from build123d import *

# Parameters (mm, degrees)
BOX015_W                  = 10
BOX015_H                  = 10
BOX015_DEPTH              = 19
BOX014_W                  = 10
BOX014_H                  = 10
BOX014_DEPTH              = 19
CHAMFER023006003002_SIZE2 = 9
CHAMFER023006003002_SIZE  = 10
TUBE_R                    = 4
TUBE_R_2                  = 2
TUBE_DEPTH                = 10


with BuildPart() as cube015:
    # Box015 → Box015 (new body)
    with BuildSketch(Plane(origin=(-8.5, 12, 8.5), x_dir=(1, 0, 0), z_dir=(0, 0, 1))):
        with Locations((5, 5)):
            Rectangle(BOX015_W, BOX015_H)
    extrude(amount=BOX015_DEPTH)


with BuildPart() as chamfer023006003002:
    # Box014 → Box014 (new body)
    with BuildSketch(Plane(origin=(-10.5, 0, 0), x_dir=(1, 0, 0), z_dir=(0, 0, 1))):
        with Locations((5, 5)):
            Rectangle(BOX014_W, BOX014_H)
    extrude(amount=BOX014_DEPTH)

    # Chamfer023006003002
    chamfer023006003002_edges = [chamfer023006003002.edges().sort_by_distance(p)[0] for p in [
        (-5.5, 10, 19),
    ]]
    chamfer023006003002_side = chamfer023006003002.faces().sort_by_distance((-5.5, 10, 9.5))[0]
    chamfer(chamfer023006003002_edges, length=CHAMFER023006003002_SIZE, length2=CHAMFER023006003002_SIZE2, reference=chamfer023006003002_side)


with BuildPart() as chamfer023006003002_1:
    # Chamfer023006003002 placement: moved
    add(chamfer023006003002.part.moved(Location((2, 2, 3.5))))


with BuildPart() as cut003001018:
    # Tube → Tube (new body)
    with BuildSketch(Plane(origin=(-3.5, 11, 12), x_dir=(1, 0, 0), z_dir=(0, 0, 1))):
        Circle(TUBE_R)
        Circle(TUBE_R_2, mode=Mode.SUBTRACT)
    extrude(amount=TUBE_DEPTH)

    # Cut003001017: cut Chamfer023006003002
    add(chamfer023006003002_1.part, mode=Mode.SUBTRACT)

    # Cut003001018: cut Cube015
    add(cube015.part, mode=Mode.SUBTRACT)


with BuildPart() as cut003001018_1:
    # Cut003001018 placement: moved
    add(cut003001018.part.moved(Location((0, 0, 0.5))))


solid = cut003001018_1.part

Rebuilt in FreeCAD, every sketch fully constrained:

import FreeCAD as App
import Part
import Sketcher
from FreeCAD import Vector


def edges_at(feature, points):
    """Names of the edges that pass closest to the given points."""
    edges = feature.Shape.Edges
    near = lambda p: min(range(len(edges)), key=lambda i: edges[i].distToShape(Part.Vertex(*p))[0])
    return sorted({f"Edge{near(p) + 1}" for p in points})


def add_polygon(sketch, points):
    """Adds a closed chain of lines whose ends are joined by coincident constraints."""
    first, n = sketch.GeometryCount, len(points)
    for a, b in zip(points, points[1:] + points[:1]):
        sketch.addGeometry(Part.LineSegment(App.Vector(*a, 0), App.Vector(*b, 0)), False)
    for i in range(n):
        sketch.addConstraint(Sketcher.Constraint("Coincident", first + i, 2, first + (i + 1) % n, 1))

doc = App.newDocument("Part")
body = doc.addObject("PartDesign::Body", "Body")

# Sketch on XY plane
sketch1 = body.newObject("Sketcher::SketchObject", "Sketch")
sketch1.AttachmentSupport = (doc.getObject("XY_Plane"), [""])
sketch1.MapMode = "FlatFace"
sketch1.AttachmentOffset = App.Placement(Vector(0, 0, 8.5), App.Rotation())
add_polygon(sketch1, [(-8.5, 22), (-8.5, 12), (1.5, 12), (1.5, 22)])  # lines 0-3
sketch1.addConstraint(Sketcher.Constraint("Vertical", 0))
sketch1.addConstraint(Sketcher.Constraint("Horizontal", 1))
sketch1.addConstraint(Sketcher.Constraint("Vertical", 2))
sketch1.addConstraint(Sketcher.Constraint("Horizontal", 3))
sketch1.addConstraint(Sketcher.Constraint("Equal", 3, 0))
sketch1.addConstraint(Sketcher.Constraint("DistanceX", 1, 1, 1, 2, 10.0))
sketch1.addConstraint(Sketcher.Constraint("DistanceY", -1, 1, 0, 2, 12.0))
sketch1.addConstraint(Sketcher.Constraint("DistanceX", 0, 2, -1, 1, 8.5))
pad1 = body.newObject("PartDesign::Pad", "Pad")
pad1.Profile = sketch1
pad1.Length = 19
body2 = doc.addObject("PartDesign::Body", "Body001")

# Sketch on XY plane
sketch2 = body2.newObject("Sketcher::SketchObject", "Sketch001")
sketch2.AttachmentSupport = (doc.getObject("XY_Plane001"), [""])
sketch2.MapMode = "FlatFace"
add_polygon(sketch2, [(-10.5, 10), (-10.5, 0), (-0.5, 0), (-0.5, 10)])  # lines 0-3
sketch2.addConstraint(Sketcher.Constraint("Vertical", 0))
sketch2.addConstraint(Sketcher.Constraint("Horizontal", 1))
sketch2.addConstraint(Sketcher.Constraint("Vertical", 2))
sketch2.addConstraint(Sketcher.Constraint("Horizontal", 3))
sketch2.addConstraint(Sketcher.Constraint("PointOnObject", 0, 2, -1))
sketch2.addConstraint(Sketcher.Constraint("Equal", 3, 0))
sketch2.addConstraint(Sketcher.Constraint("DistanceX", 1, 1, 1, 2, 10.0))
sketch2.addConstraint(Sketcher.Constraint("DistanceX", 0, 2, -1, 1, 10.5))
pad2 = body2.newObject("PartDesign::Pad", "Pad001")
pad2.Profile = sketch2
pad2.Length = 19
doc.recompute()

chamfer = body2.newObject("PartDesign::Chamfer", "Chamfer")
chamfer.Base = (pad2, edges_at(pad2, [(-5.5, 10, 19)]))
chamfer.ChamferType = "Two distances"
chamfer.Size = 10
chamfer.Size2 = 9
body3 = doc.addObject("PartDesign::Body", "Body002")
doc.recompute()

body2.Placement = App.Placement(Vector(2, 2, 3.5), App.Rotation(Vector(0, 0, 1), 0))
boolean = body3.newObject("PartDesign::Boolean", "Boolean")
boolean.Type = "Fuse"
boolean.addObjects([body2])
body4 = doc.addObject("PartDesign::Body", "Body003")

# Sketch on XY plane
sketch3 = body4.newObject("Sketcher::SketchObject", "Sketch002")
sketch3.AttachmentSupport = (doc.getObject("XY_Plane003"), [""])
sketch3.MapMode = "FlatFace"
sketch3.AttachmentOffset = App.Placement(Vector(0, 0, 12), App.Rotation())
sketch3.addGeometry(Part.Circle(Vector(-3.5, 11, 0), Vector(0, 0, 1), 4), False)
sketch3.addGeometry(Part.Circle(Vector(-3.5, 11, 0), Vector(0, 0, 1), 2), False)
sketch3.addConstraint(Sketcher.Constraint("Coincident", 1, 3, 0, 3))
sketch3.addConstraint(Sketcher.Constraint("Diameter", 0, 8.0))
sketch3.addConstraint(Sketcher.Constraint("Diameter", 1, 4.0))
sketch3.addConstraint(Sketcher.Constraint("DistanceY", -1, 1, 0, 3, 11.0))
sketch3.addConstraint(Sketcher.Constraint("DistanceX", 0, 3, -1, 1, 3.5))
pad3 = body4.newObject("PartDesign::Pad", "Pad002")
pad3.Profile = sketch3
pad3.Length = 10
doc.recompute()

boolean2 = body4.newObject("PartDesign::Boolean", "Boolean001")
boolean2.Type = "Cut"
boolean2.addObjects([body3])
doc.recompute()

boolean3 = body4.newObject("PartDesign::Boolean", "Boolean002")
boolean3.Type = "Cut"
boolean3.addObjects([body])
body5 = doc.addObject("PartDesign::Body", "Body004")
doc.recompute()

body4.Placement = App.Placement(Vector(0, 0, 0.5), App.Rotation(Vector(0, 0, 1), 0))
boolean4 = body5.newObject("PartDesign::Boolean", "Boolean003")
boolean4.Type = "Fuse"
boolean4.addObjects([body4])

doc.recompute()
